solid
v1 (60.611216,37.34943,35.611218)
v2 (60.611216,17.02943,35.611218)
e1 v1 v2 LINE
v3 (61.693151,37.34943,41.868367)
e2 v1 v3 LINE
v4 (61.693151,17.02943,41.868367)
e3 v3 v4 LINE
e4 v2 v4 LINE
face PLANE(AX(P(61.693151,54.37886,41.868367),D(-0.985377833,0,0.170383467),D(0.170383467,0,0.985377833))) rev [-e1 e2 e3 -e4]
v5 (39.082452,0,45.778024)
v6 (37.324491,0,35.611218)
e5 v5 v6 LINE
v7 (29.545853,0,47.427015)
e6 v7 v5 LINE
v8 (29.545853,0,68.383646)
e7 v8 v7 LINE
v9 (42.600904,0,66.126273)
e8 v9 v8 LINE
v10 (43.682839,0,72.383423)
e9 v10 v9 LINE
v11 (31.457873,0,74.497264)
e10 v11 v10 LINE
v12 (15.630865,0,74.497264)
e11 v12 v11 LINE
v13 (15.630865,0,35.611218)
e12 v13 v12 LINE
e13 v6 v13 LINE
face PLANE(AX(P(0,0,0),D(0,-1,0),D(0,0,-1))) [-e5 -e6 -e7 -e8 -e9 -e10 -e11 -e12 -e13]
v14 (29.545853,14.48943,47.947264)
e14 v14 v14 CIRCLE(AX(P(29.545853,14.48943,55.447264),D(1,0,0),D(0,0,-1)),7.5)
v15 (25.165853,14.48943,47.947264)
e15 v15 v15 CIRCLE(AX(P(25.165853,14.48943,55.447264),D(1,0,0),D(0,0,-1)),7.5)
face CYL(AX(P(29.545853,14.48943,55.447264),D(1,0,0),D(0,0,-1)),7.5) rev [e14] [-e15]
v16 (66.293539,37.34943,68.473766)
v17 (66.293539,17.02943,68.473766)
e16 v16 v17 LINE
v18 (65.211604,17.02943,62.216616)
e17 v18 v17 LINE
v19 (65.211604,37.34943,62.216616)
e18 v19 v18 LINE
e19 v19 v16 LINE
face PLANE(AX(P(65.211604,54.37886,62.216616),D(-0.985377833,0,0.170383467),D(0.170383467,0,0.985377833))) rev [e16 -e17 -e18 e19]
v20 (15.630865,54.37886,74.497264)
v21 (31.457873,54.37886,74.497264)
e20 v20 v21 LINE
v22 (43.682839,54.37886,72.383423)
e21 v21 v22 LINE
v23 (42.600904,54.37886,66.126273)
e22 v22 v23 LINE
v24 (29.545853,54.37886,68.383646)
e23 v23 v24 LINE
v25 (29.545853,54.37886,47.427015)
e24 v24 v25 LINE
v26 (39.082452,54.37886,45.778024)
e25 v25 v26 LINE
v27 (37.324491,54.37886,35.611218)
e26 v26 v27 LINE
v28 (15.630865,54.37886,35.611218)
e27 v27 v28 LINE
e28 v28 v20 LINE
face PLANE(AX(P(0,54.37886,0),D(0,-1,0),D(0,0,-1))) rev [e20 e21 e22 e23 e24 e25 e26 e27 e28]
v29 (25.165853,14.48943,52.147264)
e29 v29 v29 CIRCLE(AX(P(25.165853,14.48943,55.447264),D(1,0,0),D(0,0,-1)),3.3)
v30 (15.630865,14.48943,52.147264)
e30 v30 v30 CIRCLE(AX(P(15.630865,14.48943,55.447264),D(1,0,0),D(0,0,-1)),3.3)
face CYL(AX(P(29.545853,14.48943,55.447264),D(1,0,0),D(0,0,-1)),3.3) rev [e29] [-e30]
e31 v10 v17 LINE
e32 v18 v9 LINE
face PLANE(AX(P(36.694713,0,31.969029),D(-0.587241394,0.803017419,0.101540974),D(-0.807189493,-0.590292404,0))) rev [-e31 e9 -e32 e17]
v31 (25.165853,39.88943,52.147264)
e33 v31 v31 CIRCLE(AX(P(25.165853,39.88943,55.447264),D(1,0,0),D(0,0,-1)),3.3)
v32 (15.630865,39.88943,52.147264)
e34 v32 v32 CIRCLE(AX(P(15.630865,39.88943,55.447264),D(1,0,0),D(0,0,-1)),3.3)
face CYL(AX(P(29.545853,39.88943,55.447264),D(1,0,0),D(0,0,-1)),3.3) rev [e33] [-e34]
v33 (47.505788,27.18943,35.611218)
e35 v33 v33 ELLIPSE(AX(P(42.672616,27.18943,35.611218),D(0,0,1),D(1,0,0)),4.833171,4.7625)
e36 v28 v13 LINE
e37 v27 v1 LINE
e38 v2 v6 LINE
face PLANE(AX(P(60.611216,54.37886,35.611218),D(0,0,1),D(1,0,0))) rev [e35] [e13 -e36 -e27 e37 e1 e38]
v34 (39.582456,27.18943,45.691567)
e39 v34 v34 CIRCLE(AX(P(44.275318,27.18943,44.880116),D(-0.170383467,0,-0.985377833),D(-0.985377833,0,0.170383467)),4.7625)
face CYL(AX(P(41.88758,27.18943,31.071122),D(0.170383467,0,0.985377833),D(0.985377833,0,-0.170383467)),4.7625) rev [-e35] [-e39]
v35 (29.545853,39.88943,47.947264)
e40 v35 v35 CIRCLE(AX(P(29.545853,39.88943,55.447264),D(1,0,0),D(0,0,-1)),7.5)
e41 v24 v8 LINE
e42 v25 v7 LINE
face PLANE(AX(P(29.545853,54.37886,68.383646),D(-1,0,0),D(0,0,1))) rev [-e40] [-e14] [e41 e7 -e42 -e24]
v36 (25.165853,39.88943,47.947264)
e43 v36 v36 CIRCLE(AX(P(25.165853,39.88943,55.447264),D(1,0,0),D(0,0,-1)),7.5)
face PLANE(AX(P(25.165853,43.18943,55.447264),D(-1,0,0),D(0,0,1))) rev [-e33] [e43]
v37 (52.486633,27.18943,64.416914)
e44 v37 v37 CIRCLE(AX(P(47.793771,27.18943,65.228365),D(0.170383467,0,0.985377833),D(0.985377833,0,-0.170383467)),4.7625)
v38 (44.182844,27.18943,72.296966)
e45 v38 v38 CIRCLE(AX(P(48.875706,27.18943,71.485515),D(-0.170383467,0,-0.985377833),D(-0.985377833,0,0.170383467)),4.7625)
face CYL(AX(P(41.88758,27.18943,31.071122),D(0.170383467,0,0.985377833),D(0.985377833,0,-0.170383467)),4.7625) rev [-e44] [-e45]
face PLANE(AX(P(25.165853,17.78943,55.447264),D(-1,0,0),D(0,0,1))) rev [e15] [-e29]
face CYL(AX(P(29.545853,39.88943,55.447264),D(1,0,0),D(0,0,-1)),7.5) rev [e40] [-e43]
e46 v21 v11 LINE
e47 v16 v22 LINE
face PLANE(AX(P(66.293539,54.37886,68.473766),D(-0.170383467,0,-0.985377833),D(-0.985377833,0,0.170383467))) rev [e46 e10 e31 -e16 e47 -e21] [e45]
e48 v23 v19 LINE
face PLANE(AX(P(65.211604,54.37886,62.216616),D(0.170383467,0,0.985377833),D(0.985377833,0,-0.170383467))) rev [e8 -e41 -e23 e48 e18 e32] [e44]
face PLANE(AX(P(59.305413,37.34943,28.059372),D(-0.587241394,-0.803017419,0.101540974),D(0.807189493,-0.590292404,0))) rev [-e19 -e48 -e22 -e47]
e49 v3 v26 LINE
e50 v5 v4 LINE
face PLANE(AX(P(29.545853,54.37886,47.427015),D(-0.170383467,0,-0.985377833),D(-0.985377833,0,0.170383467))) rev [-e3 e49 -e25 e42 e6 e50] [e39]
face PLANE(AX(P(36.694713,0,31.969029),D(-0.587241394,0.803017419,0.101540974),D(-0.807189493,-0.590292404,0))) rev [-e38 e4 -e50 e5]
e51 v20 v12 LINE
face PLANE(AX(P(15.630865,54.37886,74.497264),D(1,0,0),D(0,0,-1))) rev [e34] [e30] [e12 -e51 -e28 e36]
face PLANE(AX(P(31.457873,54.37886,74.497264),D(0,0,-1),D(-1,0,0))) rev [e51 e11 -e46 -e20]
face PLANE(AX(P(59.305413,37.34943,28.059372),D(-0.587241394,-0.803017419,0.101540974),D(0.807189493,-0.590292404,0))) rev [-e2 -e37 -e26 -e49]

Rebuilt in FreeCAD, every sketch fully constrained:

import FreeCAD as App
import Part
import Sketcher
from FreeCAD import Vector
Q = App.Units.Quantity


def add_polygon(sketch, points):
    """Adds a closed chain of lines whose ends are joined by coincident constraints."""
    first, n = sketch.GeometryCount, len(points)
    for a, b in zip(points, points[1:] + points[:1]):
        sketch.addGeometry(Part.LineSegment(App.Vector(*a, 0), App.Vector(*b, 0)), False)
    for i in range(n):
        sketch.addConstraint(Sketcher.Constraint("Coincident", first + i, 2, first + (i + 1) % n, 1))

doc = App.newDocument("Part")
body = doc.addObject("PartDesign::Body", "Body")

# Sketch on XZ plane
sketch1 = body.newObject("Sketcher::SketchObject", "Sketch")
sketch1.AttachmentSupport = (doc.getObject("XZ_Plane"), [""])
sketch1.MapMode = "FlatFace"
add_polygon(sketch1, [(16, 36), (16, 74), (31, 74), (66, 68), (65, 62), (30, 68), (30, 47), (62, 42), (61, 36)])  # lines 0-8
sketch1.addConstraint(Sketcher.Constraint("Vertical", 0))
sketch1.addConstraint(Sketcher.Constraint("Horizontal", 1))
sketch1.addConstraint(Sketcher.Constraint("Vertical", 5))
sketch1.addConstraint(Sketcher.Constraint("Horizontal", 8))
sketch1.addConstraint(Sketcher.Constraint("Perpendicular", 2, 3))
sketch1.addConstraint(Sketcher.Constraint("Perpendicular", 3, 4))
sketch1.addConstraint(Sketcher.Constraint("Parallel", 4, 6))
sketch1.addConstraint(Sketcher.Constraint("Perpendicular", 6, 7))
sketch1.addConstraint(Sketcher.Constraint("Equal", 3, 7))
sketch1.addConstraint(Sketcher.Constraint("Distance", 3, Q("0.25 in")))
sketch1.addConstraint(Sketcher.Constraint("Distance", 4, Q("1.425 in")))
sketch1.addConstraint(Sketcher.Constraint("DistanceX", 1, 1, 1, 2, 15.827008))
sketch1.addConstraint(Sketcher.Constraint("DistanceX", 8, 2, 8, 1, 44.980351))
sketch1.addConstraint(Sketcher.Constraint("DistanceY", 5, 2, 5, 1, 20.956631))
sketch1.addConstraint(Sketcher.Constraint("DistanceY", 2, 2, 1, 2, 6.023498))
sketch1.addConstraint(Sketcher.Constraint("DistanceY", 5, 2, 3, 2, 14.789602))
sketch1.addConstraint(Sketcher.Constraint("DistanceX", -1, 1, 2, 2, 66.293539))
sketch1.addConstraint(Sketcher.Constraint("DistanceY", -1, 1, 0, 2, 74.497264))
pad1 = body.newObject("PartDesign::Pad", "Pad")
pad1.Profile = sketch1
pad1.Length = Q("2.1409 in")
pad1.Reversed = True

# Sketch on an angled plane
sketch2 = body.newObject("Sketcher::SketchObject", "Sketch001")
sketch2.Placement = App.Placement(Vector(13.42074, 0, 77.616097), App.Rotation(Vector(0.985377833, 0, -0.170383467), Vector(0, 1, 0), Vector(0.170383467, 0, 0.985377833), "ZXY"))
sketch2.addGeometry(Part.Circle(Vector(36, 27.2, 0), Vector(0, 0, 1), 4.8), False)  # 0
add_polygon(sketch2, [(53.7, 17), (30.7, 0), (53.7, 0)])  # lines 1-3
add_polygon(sketch2, [(30.7, 54.4), (53.7, 37.3), (53.7, 54.4)])  # lines 4-6
sketch2.addConstraint(Sketcher.Constraint("Horizontal", 2))
sketch2.addConstraint(Sketcher.Constraint("Vertical", 3))
sketch2.addConstraint(Sketcher.Constraint("Vertical", 5))
sketch2.addConstraint(Sketcher.Constraint("Horizontal", 6))
sketch2.addConstraint(Sketcher.Constraint("PointOnObject", 1, 2, -1))
sketch2.addConstraint(Sketcher.Constraint("Vertical", 3, 2, 4, 2))
sketch2.addConstraint(Sketcher.Constraint("Vertical", 1, 2, 6, 2))
sketch2.addConstraint(Sketcher.Constraint("Equal", 3, 5))
sketch2.addConstraint(Sketcher.Constraint("Diameter", 0, Q("0.375 in")))
sketch2.addConstraint(Sketcher.Constraint("DistanceY", 3, 2, 0, 3, Q("0.4 in")))
sketch2.addConstraint(Sketcher.Constraint("DistanceY", 3, 2, 4, 2, Q("0.8 in")))
sketch2.addConstraint(Sketcher.Constraint("Distance", 1, Q("1.125 in")))
sketch2.addConstraint(Sketcher.Constraint("DistanceY", -1, 1, 5, 2, Q("2.1409 in")))
sketch2.addConstraint(Sketcher.Constraint("DistanceX", 0, 3, 2, 2, 17.676299))
sketch2.addConstraint(Sketcher.Constraint("DistanceX", -1, 1, 0, 3, 35.981087))
pocket1 = body.newObject("PartDesign::Pocket", "Pocket")
pocket1.Profile = sketch2
pocket1.Type = "ThroughAll"
pocket1.Midplane = True

# Sketch on YZ plane
sketch3 = body.newObject("Sketcher::SketchObject", "Sketch002")
sketch3.AttachmentSupport = (doc.getObject("YZ_Plane"), [""])
sketch3.MapMode = "FlatFace"
sketch3.AttachmentOffset = App.Placement(Vector(0, 0, 29.545853), App.Rotation())
sketch3.addGeometry(Part.Circle(Vector(14.5, 55.4, 0), Vector(0, 0, 1), 3.3), False)
sketch3.addGeometry(Part.Circle(Vector(39.9, 55.4, 0), Vector(0, 0, 1), 3.3), False)
sketch3.addConstraint(Sketcher.Constraint("Equal", 0, 1))
sketch3.addConstraint(Sketcher.Constraint("Horizontal", 0, 3, 1, 3))
sketch3.addConstraint(Sketcher.Constraint("DistanceX", 0, 3, 1, 3, Q("1 in")))
sketch3.addConstraint(Sketcher.Constraint("Diameter", 0, 6.6))
sketch3.addConstraint(Sketcher.Constraint("DistanceX", -1, 1, 0, 3, 14.48943))
sketch3.addConstraint(Sketcher.Constraint("DistanceY", -1, 1, 0, 3, 55.447264))
doc.recompute()
hole = body.newObject("PartDesign::Hole", "Hole")
hole.Profile = sketch3
hole.ThreadType = "None"
hole.Diameter = 6.6
hole.DepthType = "Dimension"
hole.Depth = 14.01916
hole.DrillPoint = "Angled"
hole.DrillPointAngle = 118
hole.HoleCutType = "Counterbore"
hole.HoleCutDiameter = 15
hole.HoleCutDepth = 4.38

doc.recompute()
